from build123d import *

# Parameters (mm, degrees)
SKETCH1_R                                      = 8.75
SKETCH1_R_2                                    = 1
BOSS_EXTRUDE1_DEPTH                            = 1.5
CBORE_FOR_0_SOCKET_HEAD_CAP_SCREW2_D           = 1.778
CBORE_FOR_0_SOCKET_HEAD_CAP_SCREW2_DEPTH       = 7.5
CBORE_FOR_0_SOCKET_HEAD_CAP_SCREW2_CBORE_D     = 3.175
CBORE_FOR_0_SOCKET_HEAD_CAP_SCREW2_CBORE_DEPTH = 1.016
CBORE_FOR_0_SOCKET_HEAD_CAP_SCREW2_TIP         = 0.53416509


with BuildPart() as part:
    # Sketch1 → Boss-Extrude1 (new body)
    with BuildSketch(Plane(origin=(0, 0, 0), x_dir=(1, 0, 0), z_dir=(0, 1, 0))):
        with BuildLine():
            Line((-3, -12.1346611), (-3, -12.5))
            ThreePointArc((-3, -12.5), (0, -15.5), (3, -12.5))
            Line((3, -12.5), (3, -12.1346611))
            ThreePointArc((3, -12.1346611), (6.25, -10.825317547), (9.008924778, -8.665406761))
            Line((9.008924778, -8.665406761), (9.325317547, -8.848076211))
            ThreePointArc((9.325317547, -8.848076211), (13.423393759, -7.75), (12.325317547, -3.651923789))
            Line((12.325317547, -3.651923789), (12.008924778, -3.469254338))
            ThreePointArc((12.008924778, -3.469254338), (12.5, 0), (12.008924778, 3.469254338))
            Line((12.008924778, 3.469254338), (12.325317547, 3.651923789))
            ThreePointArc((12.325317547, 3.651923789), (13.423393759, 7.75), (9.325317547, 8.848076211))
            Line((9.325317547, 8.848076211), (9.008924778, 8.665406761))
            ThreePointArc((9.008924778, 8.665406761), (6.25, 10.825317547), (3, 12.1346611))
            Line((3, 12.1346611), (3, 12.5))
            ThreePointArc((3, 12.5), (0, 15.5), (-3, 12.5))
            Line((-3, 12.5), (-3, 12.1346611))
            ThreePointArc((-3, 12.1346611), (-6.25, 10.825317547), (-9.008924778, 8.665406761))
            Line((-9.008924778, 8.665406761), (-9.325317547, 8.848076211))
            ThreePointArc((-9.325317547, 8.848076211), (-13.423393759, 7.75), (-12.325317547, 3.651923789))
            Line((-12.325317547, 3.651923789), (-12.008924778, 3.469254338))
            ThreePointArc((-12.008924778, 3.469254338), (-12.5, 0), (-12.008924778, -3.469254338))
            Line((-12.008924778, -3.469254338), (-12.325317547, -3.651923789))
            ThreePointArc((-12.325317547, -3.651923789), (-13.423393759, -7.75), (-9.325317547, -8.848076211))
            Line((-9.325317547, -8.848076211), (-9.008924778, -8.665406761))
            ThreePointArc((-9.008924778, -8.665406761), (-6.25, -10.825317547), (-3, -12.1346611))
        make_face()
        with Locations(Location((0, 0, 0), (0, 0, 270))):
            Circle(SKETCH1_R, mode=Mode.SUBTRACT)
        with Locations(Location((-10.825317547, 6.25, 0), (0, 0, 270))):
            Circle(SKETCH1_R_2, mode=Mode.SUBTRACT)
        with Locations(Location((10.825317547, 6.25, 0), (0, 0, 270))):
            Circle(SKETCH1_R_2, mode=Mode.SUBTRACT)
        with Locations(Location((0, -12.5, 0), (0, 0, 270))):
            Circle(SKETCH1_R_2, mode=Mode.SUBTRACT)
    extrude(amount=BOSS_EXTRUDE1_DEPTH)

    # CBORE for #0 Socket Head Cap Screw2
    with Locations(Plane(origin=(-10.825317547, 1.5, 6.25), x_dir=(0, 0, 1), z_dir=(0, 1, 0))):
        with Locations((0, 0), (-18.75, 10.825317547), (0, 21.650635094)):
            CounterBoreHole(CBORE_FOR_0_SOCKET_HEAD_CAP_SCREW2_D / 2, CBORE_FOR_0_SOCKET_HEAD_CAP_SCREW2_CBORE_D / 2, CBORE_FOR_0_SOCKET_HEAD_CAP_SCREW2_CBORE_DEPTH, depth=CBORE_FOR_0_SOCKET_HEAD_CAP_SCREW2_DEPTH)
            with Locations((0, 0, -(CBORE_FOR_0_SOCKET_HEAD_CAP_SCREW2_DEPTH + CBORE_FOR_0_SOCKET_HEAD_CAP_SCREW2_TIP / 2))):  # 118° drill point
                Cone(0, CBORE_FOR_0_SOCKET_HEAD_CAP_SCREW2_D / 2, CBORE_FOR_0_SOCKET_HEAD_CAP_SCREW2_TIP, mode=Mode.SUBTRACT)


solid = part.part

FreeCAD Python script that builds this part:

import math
import FreeCAD as App
import Part
import Sketcher
Q = App.Units.Quantity

doc = App.newDocument("Part")
body = doc.addObject("PartDesign::Body", "Body")

sketch1 = body.newObject("Sketcher::SketchObject", "Sketch")
sketch1.AttachmentSupport = (doc.getObject("XZ_Plane"), [""])
sketch1.MapMode = "FlatFace"
sketch1.addGeometry(Part.LineSegment(App.Vector(-3, 12.13, 0), App.Vector(-3, 12.5, 0)), False)
sketch1.addGeometry(Part.ArcOfCircle(Part.Circle(App.Vector(0, 12.5, 0), App.Vector(0, 0, 1), 3), math.radians(0), math.radians(180)), False)
sketch1.addGeometry(Part.LineSegment(App.Vector(3, 12.5, 0), App.Vector(3, 12.13, 0)), False)
sketch1.addGeometry(Part.ArcOfCircle(Part.Circle(App.Vector(0, 0, 0), App.Vector(0, 0, 1), 12.5), math.radians(44), math.radians(76)), False)
sketch1.addGeometry(Part.LineSegment(App.Vector(9.01, 8.67, 0), App.Vector(9.33, 8.85, 0)), False)
sketch1.addGeometry(Part.ArcOfCircle(Part.Circle(App.Vector(10.83, 6.25, 0), App.Vector(0, 0, 1), 3), math.radians(-60), math.radians(120)), False)
sketch1.addGeometry(Part.LineSegment(App.Vector(12.33, 3.65, 0), App.Vector(12.01, 3.47, 0)), False)
sketch1.addGeometry(Part.ArcOfCircle(Part.Circle(App.Vector(0, 0, 0), App.Vector(0, 0, 1), 12.5), math.radians(-16), math.radians(16)), False)
sketch1.addGeometry(Part.LineSegment(App.Vector(12.01, -3.47, 0), App.Vector(12.33, -3.65, 0)), False)
sketch1.addGeometry(Part.ArcOfCircle(Part.Circle(App.Vector(10.83, -6.25, 0), App.Vector(0, 0, 1), 3), math.radians(-120), math.radians(60)), False)
sketch1.addGeometry(Part.LineSegment(App.Vector(9.33, -8.85, 0), App.Vector(9.01, -8.67, 0)), False)
sketch1.addGeometry(Part.ArcOfCircle(Part.Circle(App.Vector(0, 0, 0), App.Vector(0, 0, 1), 12.5), math.radians(-76), math.radians(-44)), False)
sketch1.addGeometry(Part.LineSegment(App.Vector(3, -12.13, 0), App.Vector(3, -12.5, 0)), False)
sketch1.addGeometry(Part.ArcOfCircle(Part.Circle(App.Vector(0, -12.5, 0), App.Vector(0, 0, 1), 3), math.radians(180), math.radians(360)), False)
sketch1.addGeometry(Part.LineSegment(App.Vector(-3, -12.5, 0), App.Vector(-3, -12.13, 0)), False)
sketch1.addGeometry(Part.ArcOfCircle(Part.Circle(App.Vector(0, 0, 0), App.Vector(0, 0, 1), 12.5), math.radians(-136), math.radians(-104)), False)
sketch1.addGeometry(Part.LineSegment(App.Vector(-9.01, -8.67, 0), App.Vector(-9.33, -8.85, 0)), False)
sketch1.addGeometry(Part.ArcOfCircle(Part.Circle(App.Vector(-10.83, -6.25, 0), App.Vector(0, 0, 1), 3), math.radians(120), math.radians(300)), False)
sketch1.addGeometry(Part.LineSegment(App.Vector(-12.33, -3.65, 0), App.Vector(-12.01, -3.47, 0)), False)
sketch1.addGeometry(Part.ArcOfCircle(Part.Circle(App.Vector(0, 0, 0), App.Vector(0, 0, 1), 12.5), math.radians(164), math.radians(196)), False)
sketch1.addGeometry(Part.LineSegment(App.Vector(-12.01, 3.47, 0), App.Vector(-12.33, 3.65, 0)), False)
sketch1.addGeometry(Part.ArcOfCircle(Part.Circle(App.Vector(-10.83, 6.25, 0), App.Vector(0, 0, 1), 3), math.radians(60), math.radians(240)), False)
sketch1.addGeometry(Part.LineSegment(App.Vector(-9.33, 8.85, 0), App.Vector(-9.01, 8.67, 0)), False)
sketch1.addGeometry(Part.ArcOfCircle(Part.Circle(App.Vector(0, 0, 0), App.Vector(0, 0, 1), 12.5), math.radians(104), math.radians(136)), False)
sketch1.addGeometry(Part.Circle(App.Vector(0, 12.5, 0), App.Vector(0, 0, 1), 1), False)
sketch1.addGeometry(Part.Circle(App.Vector(0, 0, 0), App.Vector(0, 0, 1), 8.75), False)
sketch1.addGeometry(Part.Circle(App.Vector(-10.83, -6.25, 0), App.Vector(0, 0, 1), 1), False)
sketch1.addGeometry(Part.Circle(App.Vector(10.83, -6.25, 0), App.Vector(0, 0, 1), 1), False)
sketch1.addConstraint(Sketcher.Constraint("Tangent", 0, 2, 1, 2))
sketch1.addConstraint(Sketcher.Constraint("Tangent", 1, 1, 2, 1))
sketch1.addConstraint(Sketcher.Constraint("Coincident", 2, 2, 3, 2))
sketch1.addConstraint(Sketcher.Constraint("Coincident", 3, 1, 4, 1))
sketch1.addConstraint(Sketcher.Constraint("Tangent", 4, 2, 5, 2))
sketch1.addConstraint(Sketcher.Constraint("Tangent", 5, 1, 6, 1))
sketch1.addConstraint(Sketcher.Constraint("Coincident", 6, 2, 7, 2))
sketch1.addConstraint(Sketcher.Constraint("Coincident", 7, 1, 8, 1))
sketch1.addConstraint(Sketcher.Constraint("Tangent", 8, 2, 9, 2))
sketch1.addConstraint(Sketcher.Constraint("Tangent", 9, 1, 10, 1))
sketch1.addConstraint(Sketcher.Constraint("Coincident", 10, 2, 11, 2))
sketch1.addConstraint(Sketcher.Constraint("Coincident", 11, 1, 12, 1))
sketch1.addConstraint(Sketcher.Constraint("Tangent", 12, 2, 13, 2))
sketch1.addConstraint(Sketcher.Constraint("Tangent", 13, 1, 14, 1))
sketch1.addConstraint(Sketcher.Constraint("Coincident", 14, 2, 15, 2))
sketch1.addConstraint(Sketcher.Constraint("Coincident", 15, 1, 16, 1))
sketch1.addConstraint(Sketcher.Constraint("Tangent", 16, 2, 17, 2))
sketch1.addConstraint(Sketcher.Constraint("Tangent", 17, 1, 18, 1))
sketch1.addConstraint(Sketcher.Constraint("Coincident", 18, 2, 19, 2))
sketch1.addConstraint(Sketcher.Constraint("Coincident", 19, 1, 20, 1))
sketch1.addConstraint(Sketcher.Constraint("Tangent", 20, 2, 21, 2))
sketch1.addConstraint(Sketcher.Constraint("Tangent", 21, 1, 22, 1))
sketch1.addConstraint(Sketcher.Constraint("Coincident", 22, 2, 23, 2))
sketch1.addConstraint(Sketcher.Constraint("Coincident", 23, 1, 0, 1))
sketch1.addConstraint(Sketcher.Constraint("Vertical", 0))
sketch1.addConstraint(Sketcher.Constraint("Vertical", 2))
sketch1.addConstraint(Sketcher.Constraint("Vertical", 12))
sketch1.addConstraint(Sketcher.Constraint("Vertical", 14))
sketch1.addConstraint(Sketcher.Constraint("Coincident", 3, 3, -1, 1))
sketch1.addConstraint(Sketcher.Constraint("Coincident", 7, 3, -1, 1))
sketch1.addConstraint(Sketcher.Constraint("Coincident", 11, 3, -1, 1))
sketch1.addConstraint(Sketcher.Constraint("Coincident", 15, 3, -1, 1))
sketch1.addConstraint(Sketcher.Constraint("Coincident", 19, 3, -1, 1))
sketch1.addConstraint(Sketcher.Constraint("Coincident", 23, 3, -1, 1))
sketch1.addConstraint(Sketcher.Constraint("Coincident", 25, 3, -1, 1))
sketch1.addConstraint(Sketcher.Constraint("Coincident", 24, 3, 1, 3))
sketch1.addConstraint(Sketcher.Constraint("Coincident", 26, 3, 17, 3))
sketch1.addConstraint(Sketcher.Constraint("Coincident", 27, 3, 9, 3))
sketch1.addConstraint(Sketcher.Constraint("Equal", 1, 5))
sketch1.addConstraint(Sketcher.Constraint("Equal", 3, 7))
sketch1.addConstraint(Sketcher.Constraint("Equal", 5, 9))
sketch1.addConstraint(Sketcher.Constraint("Equal", 7, 11))
sketch1.addConstraint(Sketcher.Constraint("Equal", 9, 13))
sketch1.addConstraint(Sketcher.Constraint("Equal", 11, 15))
sketch1.addConstraint(Sketcher.Constraint("Equal", 13, 17))
sketch1.addConstraint(Sketcher.Constraint("Equal", 15, 19))
sketch1.addConstraint(Sketcher.Constraint("Equal", 17, 21))
sketch1.addConstraint(Sketcher.Constraint("Equal", 19, 23))
sketch1.addConstraint(Sketcher.Constraint("Equal", 24, 26))
sketch1.addConstraint(Sketcher.Constraint("Equal", 26, 27))
sketch1.addConstraint(Sketcher.Constraint("Symmetric", 1, 3, 13, 3, -1, 1))
sketch1.addConstraint(Sketcher.Constraint("Symmetric", 5, 3, 17, 3, -1, 1))
sketch1.addConstraint(Sketcher.Constraint("Symmetric", 9, 3, 21, 3, -1, 1))
sketch1.addConstraint(Sketcher.Constraint("Symmetric", 9, 3, 17, 3, -2))
sketch1.addConstraint(Sketcher.Constraint("PointOnObject", 1, 3, -2))
sketch1.addConstraint(Sketcher.Constraint("Parallel", 4, 6))
sketch1.addConstraint(Sketcher.Constraint("Parallel", 8, 10))
sketch1.addConstraint(Sketcher.Constraint("Parallel", 6, 16))
sketch1.addConstraint(Sketcher.Constraint("Parallel", 16, 18))
sketch1.addConstraint(Sketcher.Constraint("Parallel", 10, 20))
sketch1.addConstraint(Sketcher.Constraint("Parallel", 20, 22))
sketch1.addConstraint(Sketcher.Constraint("Horizontal", 10, 2, 15, 1))
sketch1.addConstraint(Sketcher.Constraint("Equal", 4, 6))
sketch1.addConstraint(Sketcher.Constraint("Diameter", 24, Q("2 mm")))
sketch1.addConstraint(Sketcher.Constraint("Radius", 1, Q("3 mm")))
sketch1.addConstraint(Sketcher.Constraint("Diameter", 25, Q("17.5 mm")))
sketch1.addConstraint(Sketcher.Constraint("Radius", 3, Q("12.5 mm")))
sketch1.addConstraint(Sketcher.Constraint("Angle", 4, Q("30 deg")))
sketch1.addConstraint(Sketcher.Constraint("DistanceY", -1, 1, 1, 3, Q("12.5 mm")))
sketch1.addConstraint(Sketcher.Constraint("DistanceY", 9, 3, 5, 3, Q("12.5 mm")))
pad1 = body.newObject("PartDesign::Pad", "Pad")
pad1.Profile = sketch1
pad1.Length = 1.5
pad1.Reversed = True

sketch2 = body.newObject("Sketcher::SketchObject", "Sketch001")
sketch2.AttachmentSupport = (doc.getObject("XZ_Plane"), [""])
sketch2.MapMode = "FlatFace"
sketch2.AttachmentOffset = App.Placement(App.Vector(0, 0, -1.5), App.Rotation())
sketch2.addGeometry(Part.Circle(App.Vector(-10.8, 6.2, 0), App.Vector(0, 0, 1), 0.9), False)
sketch2.addGeometry(Part.Circle(App.Vector(0, -12.5, 0), App.Vector(0, 0, 1), 0.9), False)
sketch2.addGeometry(Part.Circle(App.Vector(10.8, 6.2, 0), App.Vector(0, 0, 1), 0.9), False)
sketch2.addConstraint(Sketcher.Constraint("Equal", 0, 1))
sketch2.addConstraint(Sketcher.Constraint("Equal", 1, 2))
sketch2.addConstraint(Sketcher.Constraint("Symmetric", 0, 3, 2, 3, -2))
sketch2.addConstraint(Sketcher.Constraint("PointOnObject", 1, 3, -2))
sketch2.addConstraint(Sketcher.Constraint("Diameter", 0, Q("1.778 mm")))
sketch2.addConstraint(Sketcher.Constraint("DistanceY", 1, 3, -1, 1, Q("12.5 mm")))
sketch2.addConstraint(Sketcher.Constraint("DistanceY", -1, 1, 0, 3, Q("6.25 mm")))
sketch2.addConstraint(Sketcher.Constraint("DistanceX", 0, 3, -1, 1, Q("10.825318 mm")))
doc.recompute()
hole = body.newObject("PartDesign::Hole", "Hole")
hole.Profile = sketch2
hole.ThreadType = "None"
hole.Diameter = 1.778
hole.DepthType = "Dimension"
hole.Depth = 7.5
hole.DrillPoint = "Angled"
hole.DrillPointAngle = 118
hole.HoleCutType = "Counterbore"
hole.HoleCutDiameter = 3.175
hole.HoleCutDepth = 1.016
hole.Reversed = True

doc.recompute()
